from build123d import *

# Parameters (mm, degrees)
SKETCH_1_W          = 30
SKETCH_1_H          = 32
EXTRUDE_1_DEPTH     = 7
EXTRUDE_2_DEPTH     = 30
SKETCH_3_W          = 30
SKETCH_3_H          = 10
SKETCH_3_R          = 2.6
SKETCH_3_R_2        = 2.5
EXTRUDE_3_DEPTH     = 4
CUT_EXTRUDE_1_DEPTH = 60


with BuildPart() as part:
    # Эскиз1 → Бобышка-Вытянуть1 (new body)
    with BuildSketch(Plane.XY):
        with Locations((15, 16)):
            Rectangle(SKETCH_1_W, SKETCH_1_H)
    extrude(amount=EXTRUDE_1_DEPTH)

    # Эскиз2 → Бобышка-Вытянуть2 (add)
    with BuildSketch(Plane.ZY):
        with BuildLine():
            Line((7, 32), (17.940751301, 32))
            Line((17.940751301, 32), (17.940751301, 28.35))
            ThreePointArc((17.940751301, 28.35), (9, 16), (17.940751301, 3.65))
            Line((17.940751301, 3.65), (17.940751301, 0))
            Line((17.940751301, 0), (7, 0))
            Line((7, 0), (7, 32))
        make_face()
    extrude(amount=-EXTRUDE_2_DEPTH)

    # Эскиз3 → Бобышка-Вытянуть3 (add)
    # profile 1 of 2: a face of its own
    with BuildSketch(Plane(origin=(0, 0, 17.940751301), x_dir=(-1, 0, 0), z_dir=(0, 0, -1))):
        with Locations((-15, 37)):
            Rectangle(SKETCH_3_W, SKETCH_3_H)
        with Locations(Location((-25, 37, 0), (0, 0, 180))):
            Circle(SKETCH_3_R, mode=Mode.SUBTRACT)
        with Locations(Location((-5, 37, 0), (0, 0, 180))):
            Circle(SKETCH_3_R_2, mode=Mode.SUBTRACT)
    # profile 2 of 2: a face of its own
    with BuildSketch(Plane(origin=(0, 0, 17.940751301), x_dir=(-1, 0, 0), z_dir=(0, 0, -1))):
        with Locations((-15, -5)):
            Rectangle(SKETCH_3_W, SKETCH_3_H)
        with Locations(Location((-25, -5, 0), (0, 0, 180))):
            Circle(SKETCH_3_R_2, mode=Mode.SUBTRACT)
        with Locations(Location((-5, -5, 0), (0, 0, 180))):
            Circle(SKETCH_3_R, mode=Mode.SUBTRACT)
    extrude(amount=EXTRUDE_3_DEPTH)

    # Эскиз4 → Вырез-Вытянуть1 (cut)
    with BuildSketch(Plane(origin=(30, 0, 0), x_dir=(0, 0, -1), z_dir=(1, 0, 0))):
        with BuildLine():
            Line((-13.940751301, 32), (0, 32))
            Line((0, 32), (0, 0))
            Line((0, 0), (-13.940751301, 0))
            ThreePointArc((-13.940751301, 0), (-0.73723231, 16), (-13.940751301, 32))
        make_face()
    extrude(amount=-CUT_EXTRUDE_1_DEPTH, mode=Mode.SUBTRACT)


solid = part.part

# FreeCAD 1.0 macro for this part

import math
import FreeCAD as App
import Part
import Sketcher


def add_polygon(sketch, points):
    """Adds a closed chain of lines whose ends are joined by coincident constraints."""
    first, n = sketch.GeometryCount, len(points)
    for a, b in zip(points, points[1:] + points[:1]):
        sketch.addGeometry(Part.LineSegment(App.Vector(*a, 0), App.Vector(*b, 0)), False)
    for i in range(n):
        sketch.addConstraint(Sketcher.Constraint("Coincident", first + i, 2, first + (i + 1) % n, 1))

doc = App.newDocument("Part")
params = doc.addObject("Spreadsheet::Sheet", "Params")
for row, (alias, value) in enumerate([
    ("sketch1_width", "30 mm"),
    ("sketch1_height", "32 mm"),
    ("pad1_length", "7 mm"),
    ("sketch2_radius", "13 mm"),
    ("sketch2_width", "32 mm"),
    ("sketch2_width2", "3.65 mm"),
    ("pad2_length", "30 mm"),
    ("sketch3_diameter", "5 mm"),
    ("sketch3_diameter2", "5.2 mm"),
    ("sketch3_width", "30 mm"),
    ("sketch3_height", "10 mm"),
    ("pad3_length", "4 mm"),
    ("sketch4_width", "32 mm"),
    ("pocket1_length", "60 mm"),
], start=1):
    params.set(f"A{row}", alias)
    params.set(f"B{row}", "=" + value)
    params.setAlias(f"B{row}", alias)

body = doc.addObject("PartDesign::Body", "Body")

# Sketch on XY plane
sketch1 = body.newObject("Sketcher::SketchObject", "Sketch")
sketch1.AttachmentSupport = (doc.getObject("XY_Plane"), [""])
sketch1.MapMode = "FlatFace"
add_polygon(sketch1, [(0, 32), (0, 0), (30, 0), (30, 32)])  # lines 0-3
sketch1.addConstraint(Sketcher.Constraint("Vertical", 0))
sketch1.addConstraint(Sketcher.Constraint("Horizontal", 1))
sketch1.addConstraint(Sketcher.Constraint("Vertical", 2))
sketch1.addConstraint(Sketcher.Constraint("Horizontal", 3))
sketch1.addConstraint(Sketcher.Constraint("Coincident", 0, 2, -1, 1))
sketch1.addConstraint(Sketcher.Constraint("DistanceX", 1, 1, 1, 2, 30.0))
sketch1.addConstraint(Sketcher.Constraint("DistanceY", 0, 2, 0, 1, 32.0))
sketch1.setExpression("Constraints[9]", "Params.sketch1_width")
sketch1.setExpression("Constraints[10]", "Params.sketch1_height")
pad1 = body.newObject("PartDesign::Pad", "Pad")
pad1.Profile = sketch1
pad1.setExpression("Length", "Params.pad1_length")

# Sketch on YZ plane
sketch2 = body.newObject("Sketcher::SketchObject", "Sketch001")
sketch2.AttachmentSupport = (doc.getObject("YZ_Plane"), [""])
sketch2.MapMode = "FlatFace"
sketch2.addGeometry(Part.LineSegment(App.Vector(32, 17.940751, 0), App.Vector(32, 7, 0)), False)
sketch2.addGeometry(Part.LineSegment(App.Vector(32, 7, 0), App.Vector(0, 7, 0)), False)
sketch2.addGeometry(Part.LineSegment(App.Vector(0, 7, 0), App.Vector(0, 17.940751, 0)), False)
sketch2.addGeometry(Part.LineSegment(App.Vector(0, 17.940751, 0), App.Vector(3.65, 17.940751, 0)), False)
sketch2.addGeometry(Part.ArcOfCircle(Part.Circle(App.Vector(16, 22, 0), App.Vector(0, 0, 1), 13), math.radians(-161.805128), math.radians(-18.194872)), False)
sketch2.addGeometry(Part.LineSegment(App.Vector(28.35, 17.940751, 0), App.Vector(32, 17.940751, 0)), False)
sketch2.addConstraint(Sketcher.Constraint("Coincident", 0, 2, 1, 1))
sketch2.addConstraint(Sketcher.Constraint("Coincident", 1, 2, 2, 1))
sketch2.addConstraint(Sketcher.Constraint("Coincident", 2, 2, 3, 1))
sketch2.addConstraint(Sketcher.Constraint("Coincident", 3, 2, 4, 1))
sketch2.addConstraint(Sketcher.Constraint("Coincident", 4, 2, 5, 1))
sketch2.addConstraint(Sketcher.Constraint("Coincident", 5, 2, 0, 1))
sketch2.addConstraint(Sketcher.Constraint("Vertical", 0))
sketch2.addConstraint(Sketcher.Constraint("Horizontal", 1))
sketch2.addConstraint(Sketcher.Constraint("Vertical", 2))
sketch2.addConstraint(Sketcher.Constraint("Horizontal", 3))
sketch2.addConstraint(Sketcher.Constraint("Horizontal", 5))
sketch2.addConstraint(Sketcher.Constraint("PointOnObject", 1, 2, -2))
sketch2.addConstraint(Sketcher.Constraint("Horizontal", 3, 2, 4, 2))
sketch2.addConstraint(Sketcher.Constraint("Equal", 3, 5))
sketch2.addConstraint(Sketcher.Constraint("Radius", 4, 13.0))
sketch2.addConstraint(Sketcher.Constraint("DistanceX", 1, 2, 1, 1, 32.0))
sketch2.addConstraint(Sketcher.Constraint("DistanceY", -1, 1, 4, 3, 22.0))
sketch2.addConstraint(Sketcher.Constraint("DistanceY", -1, 1, 0, 2, 7.0))
sketch2.addConstraint(Sketcher.Constraint("DistanceX", 3, 1, 3, 2, 3.65))
sketch2.setExpression("Constraints[14]", "Params.sketch2_radius")
sketch2.setExpression("Constraints[15]", "Params.sketch2_width")
sketch2.setExpression("Constraints[18]", "Params.sketch2_width2")
pad2 = body.newObject("PartDesign::Pad", "Pad001")
pad2.Profile = sketch2
pad2.setExpression("Length", "Params.pad2_length")

# Sketch on XY plane
sketch3 = body.newObject("Sketcher::SketchObject", "Sketch002")
sketch3.AttachmentSupport = (doc.getObject("XY_Plane"), [""])
sketch3.MapMode = "FlatFace"
sketch3.AttachmentOffset = App.Placement(App.Vector(0, 0, 17.940751), App.Rotation())
add_polygon(sketch3, [(30, 42), (30, 32), (0, 32), (0, 42)])  # lines 0-3
sketch3.addGeometry(Part.Circle(App.Vector(25, 37, 0), App.Vector(0, 0, 1), 2.6), False)  # 4
sketch3.addGeometry(Part.Circle(App.Vector(5, 37, 0), App.Vector(0, 0, 1), 2.5), False)  # 5
add_polygon(sketch3, [(30, 0), (30, -10), (0, -10), (0, 0)])  # lines 6-9
sketch3.addGeometry(Part.Circle(App.Vector(25, -5, 0), App.Vector(0, 0, 1), 2.5), False)  # 10
sketch3.addGeometry(Part.Circle(App.Vector(5, -5, 0), App.Vector(0, 0, 1), 2.6), False)  # 11
sketch3.addConstraint(Sketcher.Constraint("Vertical", 0))
sketch3.addConstraint(Sketcher.Constraint("Horizontal", 1))
sketch3.addConstraint(Sketcher.Constraint("Vertical", 2))
sketch3.addConstraint(Sketcher.Constraint("Horizontal", 3))
sketch3.addConstraint(Sketcher.Constraint("Vertical", 6))
sketch3.addConstraint(Sketcher.Constraint("Horizontal", 7))
sketch3.addConstraint(Sketcher.Constraint("Vertical", 8))
sketch3.addConstraint(Sketcher.Constraint("Horizontal", 9))
sketch3.addConstraint(Sketcher.Constraint("Coincident", 8, 2, -1, 1))
sketch3.addConstraint(Sketcher.Constraint("Equal", 5, 10))
sketch3.addConstraint(Sketcher.Constraint("Equal", 4, 11))
sketch3.addConstraint(Sketcher.Constraint("PointOnObject", 1, 2, -2))
sketch3.addConstraint(Sketcher.Constraint("Horizontal", 4, 3, 5, 3))
sketch3.addConstraint(Sketcher.Constraint("Horizontal", 10, 3, 11, 3))
sketch3.addConstraint(Sketcher.Constraint("Vertical", 4, 3, 10, 3))
sketch3.addConstraint(Sketcher.Constraint("Vertical", 5, 3, 11, 3))
sketch3.addConstraint(Sketcher.Constraint("Vertical", 3, 2, 6, 2))
sketch3.addConstraint(Sketcher.Constraint("Equal", 2, 6))
sketch3.addConstraint(Sketcher.Constraint("Diameter", 5, 5.0))
sketch3.addConstraint(Sketcher.Constraint("Diameter", 4, 5.2))
sketch3.addConstraint(Sketcher.Constraint("DistanceX", 1, 2, 1, 1, 30.0))
sketch3.addConstraint(Sketcher.Constraint("DistanceY", 0, 2, 0, 1, 10.0))
sketch3.addConstraint(Sketcher.Constraint("DistanceX", -1, 1, 4, 3, 25.0))
sketch3.addConstraint(Sketcher.Constraint("DistanceY", -1, 1, 4, 3, 37.0))
sketch3.addConstraint(Sketcher.Constraint("DistanceX", -1, 1, 5, 3, 5.0))
sketch3.addConstraint(Sketcher.Constraint("DistanceY", 10, 3, -1, 1, 5.0))
sketch3.addConstraint(Sketcher.Constraint("DistanceY", -1, 1, 0, 2, 32.0))
sketch3.setExpression("Constraints[26]", "Params.sketch3_diameter")
sketch3.setExpression("Constraints[27]", "Params.sketch3_diameter2")
sketch3.setExpression("Constraints[28]", "Params.sketch3_width")
sketch3.setExpression("Constraints[29]", "Params.sketch3_height")
pad3 = body.newObject("PartDesign::Pad", "Pad002")
pad3.Profile = sketch3
pad3.setExpression("Length", "Params.pad3_length")
pad3.Reversed = True

# Sketch on YZ plane
sketch4 = body.newObject("Sketcher::SketchObject", "Sketch003")
sketch4.AttachmentSupport = (doc.getObject("YZ_Plane"), [""])
sketch4.MapMode = "FlatFace"
sketch4.AttachmentOffset = App.Placement(App.Vector(0, 0, 30), App.Rotation())
sketch4.addGeometry(Part.LineSegment(App.Vector(32, 0, 0), App.Vector(32, 13.940751, 0)), False)
sketch4.addGeometry(Part.ArcOfCircle(Part.Circle(App.Vector(16, 17.033377, 0), App.Vector(0, 0, 1), 16.296145), math.radians(-169.060257), math.radians(-10.939743)), False)
sketch4.addGeometry(Part.LineSegment(App.Vector(0, 13.940751, 0), App.Vector(0, 0, 0)), False)
sketch4.addGeometry(Part.LineSegment(App.Vector(0, 0, 0), App.Vector(32, 0, 0)), False)
sketch4.addConstraint(Sketcher.Constraint("Coincident", 0, 2, 1, 2))
sketch4.addConstraint(Sketcher.Constraint("Coincident", 1, 1, 2, 1))
sketch4.addConstraint(Sketcher.Constraint("Coincident", 2, 2, 3, 1))
sketch4.addConstraint(Sketcher.Constraint("Coincident", 3, 2, 0, 1))
sketch4.addConstraint(Sketcher.Constraint("Vertical", 0))
sketch4.addConstraint(Sketcher.Constraint("Vertical", 2))
sketch4.addConstraint(Sketcher.Constraint("Horizontal", 3))
sketch4.addConstraint(Sketcher.Constraint("Coincident", 2, 2, -1, 1))
sketch4.addConstraint(Sketcher.Constraint("Horizontal", 0, 2, 1, 1))
sketch4.addConstraint(Sketcher.Constraint("DistanceX", 3, 1, 3, 2, 32.0))
sketch4.addConstraint(Sketcher.Constraint("Radius", 1, 16.296145))
sketch4.addConstraint(Sketcher.Constraint("DistanceY", 0, 1, 0, 2, 13.940751))
sketch4.setExpression("Constraints[9]", "Params.sketch4_width")
pocket1 = body.newObject("PartDesign::Pocket", "Pocket")
pocket1.Profile = sketch4
pocket1.setExpression("Length", "Params.pocket1_length")

doc.recompute()
